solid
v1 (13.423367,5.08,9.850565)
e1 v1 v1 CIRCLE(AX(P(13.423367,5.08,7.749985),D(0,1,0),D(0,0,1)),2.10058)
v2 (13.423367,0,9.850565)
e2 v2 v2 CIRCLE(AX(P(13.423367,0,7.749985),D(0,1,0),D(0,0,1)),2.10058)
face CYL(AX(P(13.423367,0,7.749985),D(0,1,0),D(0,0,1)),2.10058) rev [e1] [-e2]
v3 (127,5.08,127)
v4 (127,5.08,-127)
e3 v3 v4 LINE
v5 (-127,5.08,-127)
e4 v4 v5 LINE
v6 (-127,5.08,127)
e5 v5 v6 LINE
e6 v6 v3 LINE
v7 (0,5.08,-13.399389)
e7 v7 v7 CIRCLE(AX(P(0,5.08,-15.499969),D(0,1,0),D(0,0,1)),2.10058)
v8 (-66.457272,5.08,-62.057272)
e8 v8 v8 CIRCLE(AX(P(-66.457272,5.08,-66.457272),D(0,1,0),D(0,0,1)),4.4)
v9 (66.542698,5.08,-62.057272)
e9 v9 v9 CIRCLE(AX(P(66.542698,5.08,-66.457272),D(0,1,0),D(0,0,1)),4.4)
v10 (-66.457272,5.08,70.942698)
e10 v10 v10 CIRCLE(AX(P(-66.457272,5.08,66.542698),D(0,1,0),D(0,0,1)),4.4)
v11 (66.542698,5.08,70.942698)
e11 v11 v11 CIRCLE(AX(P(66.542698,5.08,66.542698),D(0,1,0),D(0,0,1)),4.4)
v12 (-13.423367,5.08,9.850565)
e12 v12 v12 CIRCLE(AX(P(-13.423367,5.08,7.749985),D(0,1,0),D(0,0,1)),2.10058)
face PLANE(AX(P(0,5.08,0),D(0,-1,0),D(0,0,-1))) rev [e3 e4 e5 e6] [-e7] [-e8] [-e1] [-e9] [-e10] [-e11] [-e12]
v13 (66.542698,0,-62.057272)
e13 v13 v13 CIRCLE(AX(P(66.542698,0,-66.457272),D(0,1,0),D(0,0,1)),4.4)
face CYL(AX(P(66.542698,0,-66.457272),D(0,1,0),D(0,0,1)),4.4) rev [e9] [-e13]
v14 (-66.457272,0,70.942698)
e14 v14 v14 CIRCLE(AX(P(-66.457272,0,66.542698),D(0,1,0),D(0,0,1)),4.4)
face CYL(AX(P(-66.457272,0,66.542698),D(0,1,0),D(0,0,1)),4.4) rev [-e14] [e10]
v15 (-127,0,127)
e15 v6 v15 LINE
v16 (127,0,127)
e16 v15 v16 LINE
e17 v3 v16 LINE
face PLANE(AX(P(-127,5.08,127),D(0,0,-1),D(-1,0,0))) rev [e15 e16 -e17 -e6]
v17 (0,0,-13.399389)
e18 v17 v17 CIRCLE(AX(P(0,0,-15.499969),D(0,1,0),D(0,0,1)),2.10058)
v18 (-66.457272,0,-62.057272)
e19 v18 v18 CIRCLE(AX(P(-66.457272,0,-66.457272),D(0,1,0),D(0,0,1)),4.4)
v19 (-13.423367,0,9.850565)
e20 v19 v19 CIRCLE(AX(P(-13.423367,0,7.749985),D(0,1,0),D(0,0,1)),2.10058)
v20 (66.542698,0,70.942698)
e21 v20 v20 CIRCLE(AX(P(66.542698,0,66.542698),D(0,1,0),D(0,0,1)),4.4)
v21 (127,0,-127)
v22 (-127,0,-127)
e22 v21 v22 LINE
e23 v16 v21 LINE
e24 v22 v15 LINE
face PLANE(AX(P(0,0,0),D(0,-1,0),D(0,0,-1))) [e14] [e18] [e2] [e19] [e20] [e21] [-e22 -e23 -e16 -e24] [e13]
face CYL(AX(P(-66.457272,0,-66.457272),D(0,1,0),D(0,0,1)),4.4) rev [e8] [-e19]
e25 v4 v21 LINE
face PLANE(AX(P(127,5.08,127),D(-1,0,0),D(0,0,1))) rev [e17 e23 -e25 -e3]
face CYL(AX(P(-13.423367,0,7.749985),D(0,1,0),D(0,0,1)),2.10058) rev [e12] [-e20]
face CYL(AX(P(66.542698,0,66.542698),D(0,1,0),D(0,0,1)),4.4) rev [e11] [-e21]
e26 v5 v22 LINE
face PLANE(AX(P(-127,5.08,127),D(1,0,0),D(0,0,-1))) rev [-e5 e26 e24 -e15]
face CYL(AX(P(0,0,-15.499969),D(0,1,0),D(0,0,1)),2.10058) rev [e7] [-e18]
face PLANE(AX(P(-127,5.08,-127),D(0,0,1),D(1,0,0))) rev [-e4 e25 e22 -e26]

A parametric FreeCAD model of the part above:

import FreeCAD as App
import Part
import Sketcher
from FreeCAD import Vector
Q = App.Units.Quantity

doc = App.newDocument("Part")
params = doc.addObject("Spreadsheet::Sheet", "Params")
for row, (alias, value) in enumerate([
    ("sketch1_width", "10 in"),
    ("pad1_length", "0.2 in"),
], start=1):
    params.set(f"A{row}", alias)
    params.set(f"B{row}", "=" + value)
    params.setAlias(f"B{row}", alias)

body = doc.addObject("PartDesign::Body", "Body")

sketch1 = body.newObject("Sketcher::SketchObject", "Sketch")
sketch1.AttachmentSupport = (doc.getObject("XZ_Plane"), [""])
sketch1.MapMode = "FlatFace"
sketch1.addGeometry([
    Part.LineSegment(Vector(-127, -127, 0), Vector(-127, 127, 0)),
    Part.LineSegment(Vector(-127, 127, 0), Vector(127, 127, 0)),
    Part.LineSegment(Vector(127, 127, 0), Vector(127, -127, 0)),
    Part.LineSegment(Vector(127, -127, 0), Vector(-127, -127, 0)),
], False)
sketch1.addConstraint([
    Sketcher.Constraint("Coincident", 0, 2, 1, 1),
    Sketcher.Constraint("Coincident", 1, 2, 2, 1),
    Sketcher.Constraint("Coincident", 2, 2, 3, 1),
    Sketcher.Constraint("Coincident", 3, 2, 0, 1),
    Sketcher.Constraint("Vertical", 0),
    Sketcher.Constraint("Horizontal", 1),
    Sketcher.Constraint("Vertical", 2),
    Sketcher.Constraint("Horizontal", 3),
    Sketcher.Constraint("Symmetric", 0, 2, 2, 2, -1, 1),
    Sketcher.Constraint("Equal", 3, 0),
    Sketcher.Constraint("DistanceX", 1, 1, 1, 2, Q("10 in")),
])
sketch1.setExpression("Constraints[10]", "Params.sketch1_width")
pad1 = body.newObject("PartDesign::Pad", "Pad")
pad1.Profile = sketch1
pad1.setExpression("Length", "Params.pad1_length")
pad1.Reversed = True

sketch2 = body.newObject("Sketcher::SketchObject", "Sketch001")
sketch2.AttachmentSupport = (doc.getObject("XZ_Plane"), [""])
sketch2.MapMode = "FlatFace"
sketch2.AttachmentOffset = App.Placement(Vector(0, 0, -0.2 * 25.4), App.Rotation())
sketch2.addGeometry([
    Part.Circle(Vector(0, -15.5, 0), Vector(0, 0, 1), 2.1),
    Part.Circle(Vector(13.4, 7.7, 0), Vector(0, 0, 1), 2.1),
    Part.Circle(Vector(-13.4, 7.7, 0), Vector(0, 0, 1), 2.1),
], False)
sketch2.addConstraint([
    Sketcher.Constraint("Equal", 0, 1),
    Sketcher.Constraint("Equal", 1, 2),
    Sketcher.Constraint("Symmetric", 1, 3, 2, 3, -2),
    Sketcher.Constraint("PointOnObject", 0, 3, -2),
    Sketcher.Constraint("Diameter", 0, Q("0.1654 in")),
    Sketcher.Constraint("DistanceY", 0, 3, -1, 1, Q("15.499969 mm")),
    Sketcher.Constraint("DistanceX", -1, 1, 1, 3, Q("13.423367 mm")),
    Sketcher.Constraint("DistanceY", -1, 1, 1, 3, Q("7.749985 mm")),
])
pocket1 = body.newObject("PartDesign::Pocket", "Pocket")
pocket1.Profile = sketch2
pocket1.Type = "ThroughAll"
pocket1.Reversed = True

sketch3 = body.newObject("Sketcher::SketchObject", "Sketch002")
sketch3.AttachmentSupport = (doc.getObject("XZ_Plane"), [""])
sketch3.MapMode = "FlatFace"
sketch3.AttachmentOffset = App.Placement(Vector(0, 0, -0.2 * 25.4), App.Rotation())
sketch3.addGeometry([
    Part.Circle(Vector(66.5, -66.5, 0), Vector(0, 0, 1), 4.4),
    Part.Circle(Vector(66.5, 66.5, 0), Vector(0, 0, 1), 4.4),
    Part.Circle(Vector(-66.5, 66.5, 0), Vector(0, 0, 1), 4.4),
    Part.Circle(Vector(-66.5, -66.5, 0), Vector(0, 0, 1), 4.4),
], False)
sketch3.addConstraint([
    Sketcher.Constraint("Equal", 0, 1),
    Sketcher.Constraint("Equal", 1, 2),
    Sketcher.Constraint("Equal", 2, 3),
    Sketcher.Constraint("Horizontal", 1, 3, 2, 3),
    Sketcher.Constraint("Horizontal", 0, 3, 3, 3),
    Sketcher.Constraint("Vertical", 0, 3, 1, 3),
    Sketcher.Constraint("Vertical", 2, 3, 3, 3),
    Sketcher.Constraint("Diameter", 0, Q("8.8 mm")),
    Sketcher.Constraint("DistanceX", -1, 1, 0, 3, Q("66.542698 mm")),
    Sketcher.Constraint("DistanceY", -1, 1, 1, 3, Q("66.542698 mm")),
    Sketcher.Constraint("DistanceY", 0, 3, -1, 1, Q("66.457272 mm")),
    Sketcher.Constraint("DistanceX", 2, 3, -1, 1, Q("66.457272 mm")),
])
pocket2 = body.newObject("PartDesign::Pocket", "Pocket001")
pocket2.Profile = sketch3
pocket2.Type = "ThroughAll"
pocket2.Reversed = True

doc.recompute()
